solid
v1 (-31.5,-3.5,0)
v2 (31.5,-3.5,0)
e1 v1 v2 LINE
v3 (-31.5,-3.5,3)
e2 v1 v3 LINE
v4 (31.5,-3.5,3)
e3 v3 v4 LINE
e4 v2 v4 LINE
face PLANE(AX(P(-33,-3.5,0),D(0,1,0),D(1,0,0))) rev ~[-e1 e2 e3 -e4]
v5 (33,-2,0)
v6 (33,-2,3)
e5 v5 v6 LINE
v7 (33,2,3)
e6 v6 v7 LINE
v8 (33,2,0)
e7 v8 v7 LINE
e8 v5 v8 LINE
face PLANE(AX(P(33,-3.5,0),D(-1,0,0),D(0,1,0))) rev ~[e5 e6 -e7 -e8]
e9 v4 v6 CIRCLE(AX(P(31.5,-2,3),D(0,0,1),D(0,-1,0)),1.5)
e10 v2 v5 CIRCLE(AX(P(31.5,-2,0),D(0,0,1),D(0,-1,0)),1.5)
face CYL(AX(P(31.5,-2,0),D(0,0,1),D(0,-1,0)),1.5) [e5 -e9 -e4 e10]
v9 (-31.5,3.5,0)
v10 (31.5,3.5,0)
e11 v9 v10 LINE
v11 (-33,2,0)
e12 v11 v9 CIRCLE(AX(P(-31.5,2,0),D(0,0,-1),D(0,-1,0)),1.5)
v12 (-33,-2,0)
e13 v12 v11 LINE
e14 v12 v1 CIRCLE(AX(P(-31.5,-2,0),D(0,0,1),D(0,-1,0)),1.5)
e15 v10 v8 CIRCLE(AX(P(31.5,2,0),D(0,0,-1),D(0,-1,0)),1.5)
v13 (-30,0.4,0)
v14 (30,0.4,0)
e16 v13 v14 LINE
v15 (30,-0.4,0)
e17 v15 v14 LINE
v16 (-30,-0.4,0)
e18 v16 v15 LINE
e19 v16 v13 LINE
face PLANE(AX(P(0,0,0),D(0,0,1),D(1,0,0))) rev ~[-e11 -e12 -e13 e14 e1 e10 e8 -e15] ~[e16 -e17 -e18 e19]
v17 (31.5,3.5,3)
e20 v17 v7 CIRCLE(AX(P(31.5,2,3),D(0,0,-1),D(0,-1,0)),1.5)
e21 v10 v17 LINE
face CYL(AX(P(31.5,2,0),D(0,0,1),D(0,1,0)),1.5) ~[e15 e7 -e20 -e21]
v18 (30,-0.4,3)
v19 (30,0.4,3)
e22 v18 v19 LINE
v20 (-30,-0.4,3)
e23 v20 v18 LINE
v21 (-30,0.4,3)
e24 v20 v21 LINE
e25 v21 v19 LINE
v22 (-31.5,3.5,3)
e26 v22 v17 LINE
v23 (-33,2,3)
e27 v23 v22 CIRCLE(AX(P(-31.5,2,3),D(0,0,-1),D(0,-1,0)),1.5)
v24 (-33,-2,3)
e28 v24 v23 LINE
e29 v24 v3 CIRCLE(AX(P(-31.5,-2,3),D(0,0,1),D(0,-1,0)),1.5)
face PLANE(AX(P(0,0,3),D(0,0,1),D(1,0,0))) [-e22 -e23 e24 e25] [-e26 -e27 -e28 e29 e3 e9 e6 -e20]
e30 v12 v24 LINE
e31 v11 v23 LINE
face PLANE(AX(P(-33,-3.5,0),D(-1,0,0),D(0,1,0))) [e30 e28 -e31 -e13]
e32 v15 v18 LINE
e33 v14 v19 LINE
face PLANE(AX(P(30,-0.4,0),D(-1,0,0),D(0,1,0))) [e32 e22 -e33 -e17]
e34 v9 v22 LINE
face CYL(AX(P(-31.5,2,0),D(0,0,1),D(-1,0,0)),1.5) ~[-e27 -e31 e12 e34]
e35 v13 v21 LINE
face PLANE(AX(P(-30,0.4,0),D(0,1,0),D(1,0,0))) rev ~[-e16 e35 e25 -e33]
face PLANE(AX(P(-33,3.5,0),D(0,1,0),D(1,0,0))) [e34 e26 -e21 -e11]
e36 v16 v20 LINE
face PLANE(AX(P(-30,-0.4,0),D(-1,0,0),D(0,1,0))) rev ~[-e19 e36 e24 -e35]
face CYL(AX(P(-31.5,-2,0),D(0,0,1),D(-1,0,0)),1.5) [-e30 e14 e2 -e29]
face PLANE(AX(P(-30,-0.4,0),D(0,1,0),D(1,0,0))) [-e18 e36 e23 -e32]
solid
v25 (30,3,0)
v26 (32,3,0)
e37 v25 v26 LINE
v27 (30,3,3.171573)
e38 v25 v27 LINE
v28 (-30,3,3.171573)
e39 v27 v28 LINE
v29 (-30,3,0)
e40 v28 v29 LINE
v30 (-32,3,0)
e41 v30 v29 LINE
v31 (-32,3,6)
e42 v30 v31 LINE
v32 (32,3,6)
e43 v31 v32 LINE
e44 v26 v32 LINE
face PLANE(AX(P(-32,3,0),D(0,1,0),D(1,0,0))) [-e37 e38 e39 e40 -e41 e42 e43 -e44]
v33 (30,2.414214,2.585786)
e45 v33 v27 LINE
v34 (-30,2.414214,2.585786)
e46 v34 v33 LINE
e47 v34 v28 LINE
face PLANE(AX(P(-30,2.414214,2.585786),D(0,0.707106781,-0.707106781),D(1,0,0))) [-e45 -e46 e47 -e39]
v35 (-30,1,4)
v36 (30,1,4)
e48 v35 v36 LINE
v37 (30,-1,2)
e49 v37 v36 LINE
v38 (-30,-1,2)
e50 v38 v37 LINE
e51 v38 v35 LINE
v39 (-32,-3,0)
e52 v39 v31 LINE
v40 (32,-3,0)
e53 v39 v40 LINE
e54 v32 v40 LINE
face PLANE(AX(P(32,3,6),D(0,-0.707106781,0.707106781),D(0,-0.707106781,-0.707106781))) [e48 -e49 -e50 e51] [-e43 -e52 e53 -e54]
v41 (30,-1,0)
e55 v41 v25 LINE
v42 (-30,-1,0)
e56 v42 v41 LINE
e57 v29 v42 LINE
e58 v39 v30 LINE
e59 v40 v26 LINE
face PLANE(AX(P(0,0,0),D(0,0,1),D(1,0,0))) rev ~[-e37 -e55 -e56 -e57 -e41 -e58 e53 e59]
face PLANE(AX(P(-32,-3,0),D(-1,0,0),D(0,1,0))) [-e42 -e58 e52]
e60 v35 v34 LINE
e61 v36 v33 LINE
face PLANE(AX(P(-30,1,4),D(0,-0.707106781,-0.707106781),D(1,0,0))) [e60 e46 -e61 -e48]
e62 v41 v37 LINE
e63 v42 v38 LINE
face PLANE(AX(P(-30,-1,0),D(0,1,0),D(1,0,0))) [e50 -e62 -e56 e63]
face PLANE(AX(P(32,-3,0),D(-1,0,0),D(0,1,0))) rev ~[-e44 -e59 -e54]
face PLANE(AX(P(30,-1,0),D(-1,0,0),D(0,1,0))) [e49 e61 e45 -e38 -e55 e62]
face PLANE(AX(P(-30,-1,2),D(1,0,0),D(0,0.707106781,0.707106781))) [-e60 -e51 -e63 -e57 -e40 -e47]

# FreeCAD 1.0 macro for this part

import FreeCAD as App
import Part
import Sketcher


def edges_at(feature, points):
    """Names of the edges that pass closest to the given points."""
    edges = feature.Shape.Edges
    near = lambda p: min(range(len(edges)), key=lambda i: edges[i].distToShape(Part.Vertex(*p))[0])
    return sorted({f"Edge{near(p) + 1}" for p in points})

doc = App.newDocument("Part")
body = doc.addObject("PartDesign::Body", "Body")

# Sketch on XY plane
sketch1 = doc.addObject("Sketcher::SketchObject", "Sketch")
body.addObject(sketch1)
sketch1.AttachmentSupport = (doc.XY_Plane, [""])
sketch1.MapMode = "FlatFace"
sketch1.addGeometry(Part.LineSegment(App.Vector(-32, 3, 0), App.Vector(-32, -3, 0)), False)
sketch1.addGeometry(Part.LineSegment(App.Vector(-32, -3, 0), App.Vector(32, -3, 0)), False)
sketch1.addGeometry(Part.LineSegment(App.Vector(32, -3, 0), App.Vector(32, 3, 0)), False)
sketch1.addGeometry(Part.LineSegment(App.Vector(32, 3, 0), App.Vector(-32, 3, 0)), False)
sketch1.addGeometry(Part.LineSegment(App.Vector(30, -1, 0), App.Vector(-30, -1, 0)), False)
sketch1.addGeometry(Part.LineSegment(App.Vector(-30, -1, 0), App.Vector(-30, 1, 0)), False)
sketch1.addGeometry(Part.LineSegment(App.Vector(-30, 1, 0), App.Vector(30, 1, 0)), False)
sketch1.addGeometry(Part.LineSegment(App.Vector(30, 1, 0), App.Vector(30, -1, 0)), False)
sketch1.addConstraint(Sketcher.Constraint("Coincident", 0, 2, 1, 1))
sketch1.addConstraint(Sketcher.Constraint("Coincident", 1, 2, 2, 1))
sketch1.addConstraint(Sketcher.Constraint("Coincident", 2, 2, 3, 1))
sketch1.addConstraint(Sketcher.Constraint("Coincident", 3, 2, 0, 1))
sketch1.addConstraint(Sketcher.Constraint("Coincident", 4, 2, 5, 1))
sketch1.addConstraint(Sketcher.Constraint("Coincident", 5, 2, 6, 1))
sketch1.addConstraint(Sketcher.Constraint("Coincident", 6, 2, 7, 1))
sketch1.addConstraint(Sketcher.Constraint("Coincident", 7, 2, 4, 1))
sketch1.addConstraint(Sketcher.Constraint("Vertical", 0))
sketch1.addConstraint(Sketcher.Constraint("Horizontal", 1))
sketch1.addConstraint(Sketcher.Constraint("Vertical", 2))
sketch1.addConstraint(Sketcher.Constraint("Horizontal", 3))
sketch1.addConstraint(Sketcher.Constraint("Horizontal", 4))
sketch1.addConstraint(Sketcher.Constraint("Vertical", 5))
sketch1.addConstraint(Sketcher.Constraint("Horizontal", 6))
sketch1.addConstraint(Sketcher.Constraint("Vertical", 7))
sketch1.addConstraint(Sketcher.Constraint("Symmetric", 0, 2, 2, 2, -1, 1))
sketch1.addConstraint(Sketcher.Constraint("Symmetric", 4, 2, 6, 2, -1, 1))
sketch1.addConstraint(Sketcher.Constraint("DistanceX", 1, 1, 1, 2, 64.0))
sketch1.addConstraint(Sketcher.Constraint("DistanceX", 4, 2, 4, 1, 60.0))
sketch1.addConstraint(Sketcher.Constraint("DistanceY", 0, 2, 0, 1, 6.0))
sketch1.addConstraint(Sketcher.Constraint("DistanceY", 5, 1, 5, 2, 2.0))
pad1 = doc.addObject("PartDesign::Pad", "Pad")
body.addObject(pad1)
pad1.Profile = sketch1
pad1.Length = 6

# Sketch on YZ plane
sketch2 = doc.addObject("Sketcher::SketchObject", "Sketch001")
body.addObject(sketch2)
sketch2.AttachmentSupport = (doc.YZ_Plane, [""])
sketch2.MapMode = "FlatFace"
sketch2.AttachmentOffset = App.Placement(App.Vector(0, 0, 32), App.Rotation())
sketch2.addGeometry(Part.LineSegment(App.Vector(-3, 6, 0), App.Vector(-3, 0, 0)), False)
sketch2.addGeometry(Part.LineSegment(App.Vector(-3, 0, 0), App.Vector(3, 6, 0)), False)
sketch2.addGeometry(Part.LineSegment(App.Vector(3, 6, 0), App.Vector(-3, 6, 0)), False)
sketch2.addConstraint(Sketcher.Constraint("Coincident", 0, 2, 1, 1))
sketch2.addConstraint(Sketcher.Constraint("Coincident", 1, 2, 2, 1))
sketch2.addConstraint(Sketcher.Constraint("Coincident", 2, 2, 0, 1))
sketch2.addConstraint(Sketcher.Constraint("Vertical", 0))
sketch2.addConstraint(Sketcher.Constraint("Horizontal", 2))
sketch2.addConstraint(Sketcher.Constraint("PointOnObject", 0, 2, -1))
sketch2.addConstraint(Sketcher.Constraint("Equal", 2, 0))
sketch2.addConstraint(Sketcher.Constraint("DistanceX", 2, 2, 2, 1, 6.0))
sketch2.addConstraint(Sketcher.Constraint("DistanceX", 0, 2, -1, 1, 3.0))
pocket1 = doc.addObject("PartDesign::Pocket", "Pocket")
body.addObject(pocket1)
pocket1.Profile = sketch2
pocket1.Type = "ThroughAll"

# Sketch on an angled plane
sketch3 = doc.addObject("Sketcher::SketchObject", "Sketch002")
body.addObject(sketch3)
sketch3.Placement = App.Placement(App.Vector(0, -1.5, 1.5), App.Rotation(App.Vector(1, 0, 0), App.Vector(0, 0.707106781, 0.707106781), App.Vector(0, -0.707106781, 0.707106781), "ZXY"))
sketch3.addGeometry(Part.LineSegment(App.Vector(-30, 3.5, 0), App.Vector(-30, 0.7, 0)), False)
sketch3.addGeometry(Part.LineSegment(App.Vector(-30, 0.7, 0), App.Vector(30, 0.7, 0)), False)
sketch3.addGeometry(Part.LineSegment(App.Vector(30, 0.7, 0), App.Vector(30, 3.5, 0)), False)
sketch3.addGeometry(Part.LineSegment(App.Vector(30, 3.5, 0), App.Vector(-30, 3.5, 0)), False)
sketch3.addConstraint(Sketcher.Constraint("Coincident", 0, 2, 1, 1))
sketch3.addConstraint(Sketcher.Constraint("Coincident", 1, 2, 2, 1))
sketch3.addConstraint(Sketcher.Constraint("Coincident", 2, 2, 3, 1))
sketch3.addConstraint(Sketcher.Constraint("Coincident", 3, 2, 0, 1))
sketch3.addConstraint(Sketcher.Constraint("Vertical", 0))
sketch3.addConstraint(Sketcher.Constraint("Horizontal", 1))
sketch3.addConstraint(Sketcher.Constraint("Vertical", 2))
sketch3.addConstraint(Sketcher.Constraint("Horizontal", 3))
sketch3.addConstraint(Sketcher.Constraint("DistanceX", 1, 1, 1, 2, 60.0))
sketch3.addConstraint(Sketcher.Constraint("DistanceX", 0, 2, -1, 1, 30.0))
sketch3.addConstraint(Sketcher.Constraint("DistanceY", 0, 2, 0, 1, 2.828427))
sketch3.addConstraint(Sketcher.Constraint("DistanceY", -1, 1, 0, 2, 0.707107))
pocket2 = doc.addObject("PartDesign::Pocket", "Pocket001")
body.addObject(pocket2)
pocket2.Profile = sketch3
pocket2.Type = "ThroughAll"

# Sketch on an angled plane
sketch4 = doc.addObject("Sketcher::SketchObject", "Sketch003")
body.addObject(sketch4)
sketch4.Placement = App.Placement(App.Vector(0, 2.5, 2.5), App.Rotation(App.Vector(1, 0, 0), App.Vector(0, -0.707106781, 0.707106781), App.Vector(0, -0.707106781, -0.707106781), "ZXY"))
sketch4.addGeometry(Part.LineSegment(App.Vector(-30, 0.1, 0), App.Vector(-30, -0.7, 0)), False)
sketch4.addGeometry(Part.LineSegment(App.Vector(-30, -0.7, 0), App.Vector(30, -0.7, 0)), False)
sketch4.addGeometry(Part.LineSegment(App.Vector(30, -0.7, 0), App.Vector(30, 0.1, 0)), False)
sketch4.addGeometry(Part.LineSegment(App.Vector(30, 0.1, 0), App.Vector(-30, 0.1, 0)), False)
sketch4.addConstraint(Sketcher.Constraint("Coincident", 0, 2, 1, 1))
sketch4.addConstraint(Sketcher.Constraint("Coincident", 1, 2, 2, 1))
sketch4.addConstraint(Sketcher.Constraint("Coincident", 2, 2, 3, 1))
sketch4.addConstraint(Sketcher.Constraint("Coincident", 3, 2, 0, 1))
sketch4.addConstraint(Sketcher.Constraint("Vertical", 0))
sketch4.addConstraint(Sketcher.Constraint("Horizontal", 1))
sketch4.addConstraint(Sketcher.Constraint("Vertical", 2))
sketch4.addConstraint(Sketcher.Constraint("Horizontal", 3))
sketch4.addConstraint(Sketcher.Constraint("DistanceX", 1, 1, 1, 2, 60.0))
sketch4.addConstraint(Sketcher.Constraint("DistanceX", 0, 2, -1, 1, 30.0))
sketch4.addConstraint(Sketcher.Constraint("DistanceY", 0, 2, 0, 1, 0.828427))
sketch4.addConstraint(Sketcher.Constraint("DistanceY", -1, 1, 2, 2, 0.12132))
pocket3 = doc.addObject("PartDesign::Pocket", "Pocket002")
body.addObject(pocket3)
pocket3.Profile = sketch4
pocket3.Type = "ThroughAll"
body2 = doc.addObject("PartDesign::Body", "Body001")

# Sketch on XY plane
sketch5 = doc.addObject("Sketcher::SketchObject", "Sketch004")
body2.addObject(sketch5)
sketch5.AttachmentSupport = (doc.getObject("XY_Plane001"), [""])
sketch5.MapMode = "FlatFace"
sketch5.addGeometry(Part.LineSegment(App.Vector(-33, 3.5, 0), App.Vector(-33, -3.5, 0)), False)
sketch5.addGeometry(Part.LineSegment(App.Vector(-33, -3.5, 0), App.Vector(33, -3.5, 0)), False)
sketch5.addGeometry(Part.LineSegment(App.Vector(33, -3.5, 0), App.Vector(33, 3.5, 0)), False)
sketch5.addGeometry(Part.LineSegment(App.Vector(33, 3.5, 0), App.Vector(-33, 3.5, 0)), False)
sketch5.addGeometry(Part.LineSegment(App.Vector(30, -0.4, 0), App.Vector(-30, -0.4, 0)), False)
sketch5.addGeometry(Part.LineSegment(App.Vector(-30, -0.4, 0), App.Vector(-30, 0.4, 0)), False)
sketch5.addGeometry(Part.LineSegment(App.Vector(-30, 0.4, 0), App.Vector(30, 0.4, 0)), False)
sketch5.addGeometry(Part.LineSegment(App.Vector(30, 0.4, 0), App.Vector(30, -0.4, 0)), False)
sketch5.addConstraint(Sketcher.Constraint("Coincident", 0, 2, 1, 1))
sketch5.addConstraint(Sketcher.Constraint("Coincident", 1, 2, 2, 1))
sketch5.addConstraint(Sketcher.Constraint("Coincident", 2, 2, 3, 1))
sketch5.addConstraint(Sketcher.Constraint("Coincident", 3, 2, 0, 1))
sketch5.addConstraint(Sketcher.Constraint("Coincident", 4, 2, 5, 1))
sketch5.addConstraint(Sketcher.Constraint("Coincident", 5, 2, 6, 1))
sketch5.addConstraint(Sketcher.Constraint("Coincident", 6, 2, 7, 1))
sketch5.addConstraint(Sketcher.Constraint("Coincident", 7, 2, 4, 1))
sketch5.addConstraint(Sketcher.Constraint("Vertical", 0))
sketch5.addConstraint(Sketcher.Constraint("Horizontal", 1))
sketch5.addConstraint(Sketcher.Constraint("Vertical", 2))
sketch5.addConstraint(Sketcher.Constraint("Horizontal", 3))
sketch5.addConstraint(Sketcher.Constraint("Horizontal", 4))
sketch5.addConstraint(Sketcher.Constraint("Vertical", 5))
sketch5.addConstraint(Sketcher.Constraint("Horizontal", 6))
sketch5.addConstraint(Sketcher.Constraint("Vertical", 7))
sketch5.addConstraint(Sketcher.Constraint("Symmetric", 0, 2, 2, 2, -1, 1))
sketch5.addConstraint(Sketcher.Constraint("Symmetric", 4, 2, 6, 2, -1, 1))
sketch5.addConstraint(Sketcher.Constraint("DistanceX", 1, 1, 1, 2, 66.0))
sketch5.addConstraint(Sketcher.Constraint("DistanceX", 4, 2, 4, 1, 60.0))
sketch5.addConstraint(Sketcher.Constraint("DistanceY", 0, 2, 0, 1, 7.0))
sketch5.addConstraint(Sketcher.Constraint("DistanceY", 5, 1, 5, 2, 0.8))
pad2 = doc.addObject("PartDesign::Pad", "Pad001")
body2.addObject(pad2)
pad2.Profile = sketch5
pad2.Length = 3
doc.recompute()

fillet = doc.addObject("PartDesign::Fillet", "Fillet")
body2.addObject(fillet)
fillet.Base = (pad2, edges_at(pad2, [
    (-33, 3.5, 1.5),
    (-33, -3.5, 1.5),
    (33, 3.5, 1.5),
    (33, -3.5, 1.5),
]))
fillet.Radius = 1.5

doc.recompute()
